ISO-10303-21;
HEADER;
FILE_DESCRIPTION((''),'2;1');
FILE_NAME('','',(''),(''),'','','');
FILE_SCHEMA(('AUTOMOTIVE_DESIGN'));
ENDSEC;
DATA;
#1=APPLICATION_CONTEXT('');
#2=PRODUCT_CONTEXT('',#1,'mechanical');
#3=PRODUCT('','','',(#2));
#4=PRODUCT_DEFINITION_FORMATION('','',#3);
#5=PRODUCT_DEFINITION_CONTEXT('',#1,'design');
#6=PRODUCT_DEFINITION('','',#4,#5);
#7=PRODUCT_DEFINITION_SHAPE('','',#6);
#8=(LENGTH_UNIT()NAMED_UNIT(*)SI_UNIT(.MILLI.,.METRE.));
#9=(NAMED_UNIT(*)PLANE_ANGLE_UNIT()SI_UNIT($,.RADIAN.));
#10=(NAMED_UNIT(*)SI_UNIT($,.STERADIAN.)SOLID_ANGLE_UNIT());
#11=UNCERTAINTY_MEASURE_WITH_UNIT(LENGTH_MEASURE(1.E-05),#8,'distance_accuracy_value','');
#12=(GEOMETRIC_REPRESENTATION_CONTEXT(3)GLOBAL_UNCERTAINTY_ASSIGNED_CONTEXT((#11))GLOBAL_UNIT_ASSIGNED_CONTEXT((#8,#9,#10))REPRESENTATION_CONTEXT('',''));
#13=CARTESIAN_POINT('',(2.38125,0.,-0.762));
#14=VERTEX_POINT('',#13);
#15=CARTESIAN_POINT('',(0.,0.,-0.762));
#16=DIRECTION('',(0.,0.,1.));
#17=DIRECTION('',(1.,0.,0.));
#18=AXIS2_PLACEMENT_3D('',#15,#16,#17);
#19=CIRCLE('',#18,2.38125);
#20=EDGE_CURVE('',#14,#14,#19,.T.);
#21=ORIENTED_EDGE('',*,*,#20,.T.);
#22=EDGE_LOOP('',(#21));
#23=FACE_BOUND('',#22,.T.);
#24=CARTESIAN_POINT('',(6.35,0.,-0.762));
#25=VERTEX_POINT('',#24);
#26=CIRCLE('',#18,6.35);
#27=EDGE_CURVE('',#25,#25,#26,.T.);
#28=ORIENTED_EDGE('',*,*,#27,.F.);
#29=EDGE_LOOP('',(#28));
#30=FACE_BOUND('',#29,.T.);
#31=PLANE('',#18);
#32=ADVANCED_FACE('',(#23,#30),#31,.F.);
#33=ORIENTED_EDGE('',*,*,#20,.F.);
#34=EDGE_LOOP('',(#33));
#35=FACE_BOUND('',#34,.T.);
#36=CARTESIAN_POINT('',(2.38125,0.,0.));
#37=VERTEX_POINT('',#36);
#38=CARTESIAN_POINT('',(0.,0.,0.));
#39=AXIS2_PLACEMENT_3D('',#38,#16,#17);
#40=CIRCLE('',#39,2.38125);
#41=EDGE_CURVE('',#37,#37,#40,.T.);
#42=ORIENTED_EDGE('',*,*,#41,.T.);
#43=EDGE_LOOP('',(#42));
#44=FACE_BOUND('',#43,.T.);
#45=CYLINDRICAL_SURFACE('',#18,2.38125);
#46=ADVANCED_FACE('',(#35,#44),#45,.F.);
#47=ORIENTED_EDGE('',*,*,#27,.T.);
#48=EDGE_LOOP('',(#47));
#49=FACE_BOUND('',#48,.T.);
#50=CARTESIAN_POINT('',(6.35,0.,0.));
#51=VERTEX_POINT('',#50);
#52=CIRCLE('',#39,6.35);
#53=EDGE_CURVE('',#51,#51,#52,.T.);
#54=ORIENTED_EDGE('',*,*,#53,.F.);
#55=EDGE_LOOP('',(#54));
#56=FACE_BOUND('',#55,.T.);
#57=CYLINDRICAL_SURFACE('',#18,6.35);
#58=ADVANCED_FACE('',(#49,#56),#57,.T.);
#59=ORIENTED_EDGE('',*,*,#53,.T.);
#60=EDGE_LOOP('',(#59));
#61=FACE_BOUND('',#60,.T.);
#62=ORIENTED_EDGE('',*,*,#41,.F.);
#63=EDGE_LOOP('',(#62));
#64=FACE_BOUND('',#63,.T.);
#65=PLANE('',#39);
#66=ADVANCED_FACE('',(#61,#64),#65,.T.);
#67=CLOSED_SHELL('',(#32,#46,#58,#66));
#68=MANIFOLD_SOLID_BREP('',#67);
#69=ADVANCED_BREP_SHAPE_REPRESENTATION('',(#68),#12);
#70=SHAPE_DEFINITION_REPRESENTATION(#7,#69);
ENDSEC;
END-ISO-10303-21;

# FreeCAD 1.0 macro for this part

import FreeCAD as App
import Part
import Sketcher
Q = App.Units.Quantity

doc = App.newDocument("Part")
body = doc.addObject("PartDesign::Body", "Body")

sketch1 = body.newObject("Sketcher::SketchObject", "Sketch")
sketch1.AttachmentSupport = (doc.getObject("XY_Plane"), [""])
sketch1.MapMode = "FlatFace"
sketch1.addGeometry([
    Part.Circle(App.Vector(0, 0, 0), App.Vector(0, 0, 1), 6.3),
    Part.Circle(App.Vector(0, 0, 0), App.Vector(0, 0, 1), 2.4),
], False)
sketch1.addConstraint([
    Sketcher.Constraint("Coincident", 0, 3, -1, 1),
    Sketcher.Constraint("Coincident", 1, 3, -1, 1),
    Sketcher.Constraint("Diameter", 0, Q("0.5 in")),
    Sketcher.Constraint("Diameter", 1, Q("0.1875 in")),
])
pad1 = body.newObject("PartDesign::Pad", "Pad")
pad1.Profile = sketch1
pad1.Length = Q("0.03 in")
pad1.Reversed = True

doc.recompute()
